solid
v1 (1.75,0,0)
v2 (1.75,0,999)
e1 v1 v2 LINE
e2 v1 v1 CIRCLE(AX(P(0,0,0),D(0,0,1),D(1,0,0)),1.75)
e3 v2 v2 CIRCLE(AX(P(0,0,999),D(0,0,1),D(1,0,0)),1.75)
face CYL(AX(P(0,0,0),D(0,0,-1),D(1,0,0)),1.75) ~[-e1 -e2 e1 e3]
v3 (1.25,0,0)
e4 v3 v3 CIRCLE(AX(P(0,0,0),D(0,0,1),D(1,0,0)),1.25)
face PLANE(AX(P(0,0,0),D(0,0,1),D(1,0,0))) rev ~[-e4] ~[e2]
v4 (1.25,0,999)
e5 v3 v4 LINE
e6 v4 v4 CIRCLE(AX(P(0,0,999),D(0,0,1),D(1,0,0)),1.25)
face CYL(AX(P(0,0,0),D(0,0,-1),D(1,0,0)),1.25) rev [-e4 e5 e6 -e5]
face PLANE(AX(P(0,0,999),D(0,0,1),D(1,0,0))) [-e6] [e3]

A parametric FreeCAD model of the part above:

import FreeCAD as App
import Part
import Sketcher

V = App.Vector
Q = App.Units.Quantity

doc = App.newDocument("Part")
body = doc.addObject("PartDesign::Body", "Body")

# Sketch on XY plane
sketch1 = body.newObject("Sketcher::SketchObject", "Sketch")
sketch1.AttachmentSupport = (doc.getObject("XY_Plane"), [""])
sketch1.MapMode = "FlatFace"
sketch1.addGeometry(Part.Circle(V(0, 0, 0), V(0, 0, 1), 1.8), False)
sketch1.addGeometry(Part.Circle(V(0, 0, 0), V(0, 0, 1), 1.2), False)
sketch1.addConstraint(Sketcher.Constraint("Coincident", 0, 3, -1, 1))
sketch1.addConstraint(Sketcher.Constraint("Coincident", 1, 3, -1, 1))
sketch1.addConstraint(Sketcher.Constraint("Diameter", 0, Q("3.5 mm")))
sketch1.addConstraint(Sketcher.Constraint("Diameter", 1, Q("2.5 mm")))
pad1 = body.newObject("PartDesign::Pad", "Pad")
pad1.Profile = sketch1
pad1.Length = 999

doc.recompute()
